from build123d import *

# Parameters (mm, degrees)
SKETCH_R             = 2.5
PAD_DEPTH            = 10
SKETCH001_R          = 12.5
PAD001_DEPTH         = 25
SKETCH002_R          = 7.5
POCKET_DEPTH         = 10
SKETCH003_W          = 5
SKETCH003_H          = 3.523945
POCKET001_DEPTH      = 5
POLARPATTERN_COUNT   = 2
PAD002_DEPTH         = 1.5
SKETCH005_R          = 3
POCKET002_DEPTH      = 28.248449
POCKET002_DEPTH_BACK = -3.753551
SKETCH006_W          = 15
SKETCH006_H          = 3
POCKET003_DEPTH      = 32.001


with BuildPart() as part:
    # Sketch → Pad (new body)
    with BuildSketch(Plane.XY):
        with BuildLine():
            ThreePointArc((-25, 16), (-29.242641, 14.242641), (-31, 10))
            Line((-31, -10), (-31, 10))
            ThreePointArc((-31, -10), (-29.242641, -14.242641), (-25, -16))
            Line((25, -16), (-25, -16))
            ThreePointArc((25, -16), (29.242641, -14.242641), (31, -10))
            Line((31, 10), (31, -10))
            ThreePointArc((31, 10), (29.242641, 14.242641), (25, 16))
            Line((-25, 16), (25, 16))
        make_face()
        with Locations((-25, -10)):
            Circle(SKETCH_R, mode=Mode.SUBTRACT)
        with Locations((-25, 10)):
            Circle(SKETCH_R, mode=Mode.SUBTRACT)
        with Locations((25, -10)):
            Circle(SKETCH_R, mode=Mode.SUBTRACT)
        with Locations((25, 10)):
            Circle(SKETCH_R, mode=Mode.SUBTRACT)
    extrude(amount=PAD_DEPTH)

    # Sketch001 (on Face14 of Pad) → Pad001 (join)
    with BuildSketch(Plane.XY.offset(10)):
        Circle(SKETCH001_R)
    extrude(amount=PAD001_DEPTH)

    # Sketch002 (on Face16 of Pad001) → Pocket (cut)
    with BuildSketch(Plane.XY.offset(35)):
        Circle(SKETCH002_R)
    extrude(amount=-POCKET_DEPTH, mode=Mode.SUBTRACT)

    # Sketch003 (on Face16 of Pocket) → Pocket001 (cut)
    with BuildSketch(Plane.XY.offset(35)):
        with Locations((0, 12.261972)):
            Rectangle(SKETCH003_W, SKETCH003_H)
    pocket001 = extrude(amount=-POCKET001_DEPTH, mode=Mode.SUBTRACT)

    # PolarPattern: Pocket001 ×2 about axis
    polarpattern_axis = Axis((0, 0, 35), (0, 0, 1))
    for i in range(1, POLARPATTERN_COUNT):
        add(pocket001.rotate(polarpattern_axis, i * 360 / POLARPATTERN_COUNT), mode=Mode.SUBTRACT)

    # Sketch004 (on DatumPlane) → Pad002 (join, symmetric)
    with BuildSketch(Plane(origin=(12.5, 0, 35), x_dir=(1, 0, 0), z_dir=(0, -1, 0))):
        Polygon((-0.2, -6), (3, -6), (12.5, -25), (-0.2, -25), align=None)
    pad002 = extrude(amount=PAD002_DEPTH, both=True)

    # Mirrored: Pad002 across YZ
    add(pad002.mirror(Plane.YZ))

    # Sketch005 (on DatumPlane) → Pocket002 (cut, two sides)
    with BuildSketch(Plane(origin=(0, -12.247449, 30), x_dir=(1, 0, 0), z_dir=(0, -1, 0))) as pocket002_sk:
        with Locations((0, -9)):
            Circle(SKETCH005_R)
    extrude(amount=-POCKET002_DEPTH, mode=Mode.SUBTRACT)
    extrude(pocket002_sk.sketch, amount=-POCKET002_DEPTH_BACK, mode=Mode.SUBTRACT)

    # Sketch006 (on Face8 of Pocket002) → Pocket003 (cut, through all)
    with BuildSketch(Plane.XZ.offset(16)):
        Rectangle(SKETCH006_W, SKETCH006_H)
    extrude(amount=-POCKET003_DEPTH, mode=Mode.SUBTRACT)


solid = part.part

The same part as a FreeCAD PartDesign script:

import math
import FreeCAD as App
import Part
import Sketcher
from FreeCAD import Vector


def add_polygon(sketch, points):
    """Adds a closed chain of lines whose ends are joined by coincident constraints."""
    first, n = sketch.GeometryCount, len(points)
    for a, b in zip(points, points[1:] + points[:1]):
        sketch.addGeometry(Part.LineSegment(App.Vector(*a, 0), App.Vector(*b, 0)), False)
    for i in range(n):
        sketch.addConstraint(Sketcher.Constraint("Coincident", first + i, 2, first + (i + 1) % n, 1))

doc = App.newDocument("Part")
body = doc.addObject("PartDesign::Body", "Body")

# Sketch on XY plane
sketch1 = body.newObject("Sketcher::SketchObject", "Sketch")
sketch1.AttachmentSupport = (doc.getObject("XY_Plane"), [""])
sketch1.MapMode = "FlatFace"
sketch1.addGeometry([
    Part.ArcOfCircle(Part.Circle(Vector(-25, 10, 0), Vector(0, 0, 1), 6), math.radians(90), math.radians(180)),  # 0
    Part.LineSegment(Vector(-31, 10, 0), Vector(-31, -10, 0)),  # 1
    Part.ArcOfCircle(Part.Circle(Vector(-25, -10, 0), Vector(0, 0, 1), 6), math.radians(180), math.radians(270)),  # 2
    Part.LineSegment(Vector(-25, -16, 0), Vector(25, -16, 0)),  # 3
    Part.ArcOfCircle(Part.Circle(Vector(25, -10, 0), Vector(0, 0, 1), 6), math.radians(-90), math.radians(0)),  # 4
    Part.LineSegment(Vector(31, -10, 0), Vector(31, 10, 0)),  # 5
    Part.ArcOfCircle(Part.Circle(Vector(25, 10, 0), Vector(0, 0, 1), 6), math.radians(0), math.radians(90)),  # 6
    Part.LineSegment(Vector(25, 16, 0), Vector(-25, 16, 0)),  # 7
    Part.Circle(Vector(-25, -10, 0), Vector(0, 0, 1), 2.5),  # 8
    Part.Circle(Vector(25, -10, 0), Vector(0, 0, 1), 2.5),  # 9
    Part.Circle(Vector(-25, 10, 0), Vector(0, 0, 1), 2.5),  # 10
    Part.Circle(Vector(25, 10, 0), Vector(0, 0, 1), 2.5),  # 11
], False)
sketch1.addConstraint([
    Sketcher.Constraint("Tangent", 0, 2, 1, 1),
    Sketcher.Constraint("Tangent", 1, 2, 2, 1),
    Sketcher.Constraint("Tangent", 2, 2, 3, 1),
    Sketcher.Constraint("Tangent", 3, 2, 4, 1),
    Sketcher.Constraint("Tangent", 4, 2, 5, 1),
    Sketcher.Constraint("Tangent", 5, 2, 6, 1),
    Sketcher.Constraint("Tangent", 6, 2, 7, 1),
    Sketcher.Constraint("Tangent", 7, 2, 0, 1),
    Sketcher.Constraint("Vertical", 1),
    Sketcher.Constraint("Horizontal", 3),
    Sketcher.Constraint("Vertical", 5),
    Sketcher.Constraint("Horizontal", 7),
    Sketcher.Constraint("Coincident", 8, 3, 2, 3),
    Sketcher.Constraint("Coincident", 9, 3, 4, 3),
    Sketcher.Constraint("Coincident", 10, 3, 0, 3),
    Sketcher.Constraint("Coincident", 11, 3, 6, 3),
    Sketcher.Constraint("Equal", 0, 2),
    Sketcher.Constraint("Equal", 2, 4),
    Sketcher.Constraint("Equal", 4, 6),
    Sketcher.Constraint("Equal", 8, 9),
    Sketcher.Constraint("Equal", 9, 10),
    Sketcher.Constraint("Equal", 10, 11),
    Sketcher.Constraint("Symmetric", 0, 3, 4, 3, -1, 1),
    Sketcher.Constraint("Diameter", 8, 5.0),
    Sketcher.Constraint("Radius", 0, 5.999999),
    Sketcher.Constraint("DistanceX", 3, 1, 3, 2, 50.0),
    Sketcher.Constraint("DistanceY", 1, 2, 1, 1, 20.0),
])
pad1 = body.newObject("PartDesign::Pad", "Pad")
pad1.Profile = sketch1
pad1.Length = 10

# Sketch on XY plane
sketch2 = body.newObject("Sketcher::SketchObject", "Sketch001")
sketch2.AttachmentSupport = (doc.getObject("XY_Plane"), [""])
sketch2.MapMode = "FlatFace"
sketch2.AttachmentOffset = App.Placement(Vector(0, 0, 10), App.Rotation())
sketch2.addGeometry(Part.Circle(Vector(0, 0, 0), Vector(0, 0, 1), 12), False)
sketch2.addConstraint([
    Sketcher.Constraint("Coincident", 0, 3, -1, 1),
    Sketcher.Constraint("Diameter", 0, 25.0),
])
pad2 = body.newObject("PartDesign::Pad", "Pad001")
pad2.Profile = sketch2
pad2.Length = 25

# Sketch on XY plane
sketch3 = body.newObject("Sketcher::SketchObject", "Sketch002")
sketch3.AttachmentSupport = (doc.getObject("XY_Plane"), [""])
sketch3.MapMode = "FlatFace"
sketch3.AttachmentOffset = App.Placement(Vector(0, 0, 35), App.Rotation())
sketch3.addGeometry(Part.Circle(Vector(0, 0, 0), Vector(0, 0, 1), 8), False)
sketch3.addConstraint([
    Sketcher.Constraint("Coincident", 0, 3, -1, 1),
    Sketcher.Constraint("Diameter", 0, 15.0),
])
pocket1 = body.newObject("PartDesign::Pocket", "Pocket")
pocket1.Profile = sketch3
pocket1.Length = 10

# Sketch on XY plane
sketch4 = body.newObject("Sketcher::SketchObject", "Sketch003")
sketch4.AttachmentSupport = (doc.getObject("XY_Plane"), [""])
sketch4.MapMode = "FlatFace"
sketch4.AttachmentOffset = App.Placement(Vector(0, 0, 35), App.Rotation())
add_polygon(sketch4, [(-2.5, 14), (-2.5, 10.5), (2.5, 10.5), (2.5, 14)])  # lines 0-3
sketch4.addConstraint([
    Sketcher.Constraint("Vertical", 0),
    Sketcher.Constraint("Horizontal", 1),
    Sketcher.Constraint("Vertical", 2),
    Sketcher.Constraint("Horizontal", 3),
    Sketcher.Constraint("DistanceX", 1, 1, 1, 2, 5.0),
    Sketcher.Constraint("DistanceX", 0, 2, -1, 1, 2.5),
    Sketcher.Constraint("DistanceY", -1, 1, 0, 2, 10.499999),
    Sketcher.Constraint("DistanceY", 0, 2, 0, 1, 3.523945),
])
pocket2 = body.newObject("PartDesign::Pocket", "Pocket001")
pocket2.Profile = sketch4
pocket2.Length = 5
doc.recompute()

polarpattern = body.newObject("PartDesign::PolarPattern", "PolarPattern")
polarpattern.Originals = [pocket2]
polarpattern.Axis = (doc.getObject("Z_Axis"), [""])
polarpattern.Angle = 360
polarpattern.Occurrences = 2
body.Tip = polarpattern

# Sketch on XZ plane
sketch5 = body.newObject("Sketcher::SketchObject", "Sketch004")
sketch5.AttachmentSupport = (doc.getObject("XZ_Plane"), [""])
sketch5.MapMode = "FlatFace"
add_polygon(sketch5, [(15.5, 29), (12.3, 29), (12.3, 10), (25, 10)])  # lines 0-3
sketch5.addConstraint([
    Sketcher.Constraint("Horizontal", 0),
    Sketcher.Constraint("Vertical", 1),
    Sketcher.Constraint("Horizontal", 2),
    Sketcher.Constraint("DistanceY", 1, 2, 1, 1, 19.0),
    Sketcher.Constraint("DistanceX", 0, 2, 0, 1, 3.2),
    Sketcher.Constraint("DistanceX", 2, 1, 2, 2, 12.7),
    Sketcher.Constraint("DistanceY", -1, 1, 0, 2, 29.0),
    Sketcher.Constraint("DistanceX", -1, 1, 2, 2, 25.0),
])
pad3 = body.newObject("PartDesign::Pad", "Pad002")
pad3.Profile = sketch5
pad3.Length = 3
pad3.Midplane = True
doc.recompute()

mirrored = body.newObject("PartDesign::Mirrored", "Mirrored")
mirrored.Originals = [pad3]
mirrored.MirrorPlane = (doc.getObject("YZ_Plane"), [""])
body.Tip = mirrored

# Sketch on XZ plane
sketch6 = body.newObject("Sketcher::SketchObject", "Sketch005")
sketch6.AttachmentSupport = (doc.getObject("XZ_Plane"), [""])
sketch6.MapMode = "FlatFace"
sketch6.AttachmentOffset = App.Placement(Vector(0, 0, 12.247449), App.Rotation())
sketch6.addGeometry(Part.Circle(Vector(0, 21, 0), Vector(0, 0, 1), 3), False)
sketch6.addConstraint([
    Sketcher.Constraint("PointOnObject", 0, 3, -2),
    Sketcher.Constraint("Diameter", 0, 6.0),
    Sketcher.Constraint("DistanceY", -1, 1, 0, 3, 21.0),
])
pocket3 = body.newObject("PartDesign::Pocket", "Pocket002")
pocket3.Profile = sketch6
pocket3.Type = "ThroughAll"
pocket3.Midplane = True

# Sketch on XZ plane
sketch7 = body.newObject("Sketcher::SketchObject", "Sketch006")
sketch7.AttachmentSupport = (doc.getObject("XZ_Plane"), [""])
sketch7.MapMode = "FlatFace"
sketch7.AttachmentOffset = App.Placement(Vector(0, 0, 16), App.Rotation())
add_polygon(sketch7, [(-7.5, 1.5), (-7.5, -1.5), (7.5, -1.5), (7.5, 1.5)])  # lines 0-3
sketch7.addConstraint([
    Sketcher.Constraint("Vertical", 0),
    Sketcher.Constraint("Horizontal", 1),
    Sketcher.Constraint("Vertical", 2),
    Sketcher.Constraint("Horizontal", 3),
    Sketcher.Constraint("Symmetric", 0, 2, 2, 2, -1, 1),
    Sketcher.Constraint("DistanceX", 1, 1, 1, 2, 15.0),
    Sketcher.Constraint("DistanceY", 0, 2, 0, 1, 3.0),
])
pocket4 = body.newObject("PartDesign::Pocket", "Pocket003")
pocket4.Profile = sketch7
pocket4.Type = "ThroughAll"

doc.recompute()
